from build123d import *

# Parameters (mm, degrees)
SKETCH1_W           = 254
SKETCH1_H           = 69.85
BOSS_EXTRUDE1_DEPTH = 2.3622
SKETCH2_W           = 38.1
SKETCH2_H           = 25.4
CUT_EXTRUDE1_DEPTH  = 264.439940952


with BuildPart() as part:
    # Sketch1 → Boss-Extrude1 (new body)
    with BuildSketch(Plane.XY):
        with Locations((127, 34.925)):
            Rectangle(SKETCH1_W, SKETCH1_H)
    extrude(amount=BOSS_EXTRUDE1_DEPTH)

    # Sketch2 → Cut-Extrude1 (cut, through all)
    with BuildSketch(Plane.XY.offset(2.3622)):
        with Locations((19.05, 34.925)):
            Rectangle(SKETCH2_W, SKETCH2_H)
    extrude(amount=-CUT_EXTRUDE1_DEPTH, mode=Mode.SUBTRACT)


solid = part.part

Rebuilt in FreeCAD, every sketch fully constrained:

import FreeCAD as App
import Part
import Sketcher

V = App.Vector
Q = App.Units.Quantity

doc = App.newDocument("Part")
body = doc.addObject("PartDesign::Body", "Body")

# Sketch on XY plane
sketch1 = doc.addObject("Sketcher::SketchObject", "Sketch")
body.addObject(sketch1)
sketch1.AttachmentSupport = (doc.XY_Plane, [""])
sketch1.MapMode = "FlatFace"
sketch1.addGeometry([
    Part.LineSegment(V(0, 70, 0), V(0, 0, 0)),
    Part.LineSegment(V(0, 0, 0), V(254, 0, 0)),
    Part.LineSegment(V(254, 0, 0), V(254, 70, 0)),
    Part.LineSegment(V(254, 70, 0), V(0, 70, 0)),
], False)
sketch1.addConstraint([
    Sketcher.Constraint("Coincident", 0, 2, 1, 1),
    Sketcher.Constraint("Coincident", 1, 2, 2, 1),
    Sketcher.Constraint("Coincident", 2, 2, 3, 1),
    Sketcher.Constraint("Coincident", 3, 2, 0, 1),
    Sketcher.Constraint("Vertical", 0),
    Sketcher.Constraint("Horizontal", 1),
    Sketcher.Constraint("Vertical", 2),
    Sketcher.Constraint("Horizontal", 3),
    Sketcher.Constraint("Coincident", 0, 2, -1, 1),
    Sketcher.Constraint("DistanceX", 1, 1, 1, 2, Q("10 in")),
    Sketcher.Constraint("DistanceY", 0, 2, 0, 1, Q("2.75 in")),
])
pad1 = doc.addObject("PartDesign::Pad", "Pad")
body.addObject(pad1)
pad1.Profile = sketch1
pad1.Length = Q("0.093 in")

# Sketch on XY plane
sketch2 = doc.addObject("Sketcher::SketchObject", "Sketch001")
body.addObject(sketch2)
sketch2.AttachmentSupport = (doc.XY_Plane, [""])
sketch2.MapMode = "FlatFace"
sketch2.AttachmentOffset = App.Placement(V(0, 0, 0.093 * 25.4), App.Rotation())
sketch2.addGeometry([
    Part.LineSegment(V(0, 48, 0), V(0, 22, 0)),
    Part.LineSegment(V(0, 22, 0), V(38, 22, 0)),
    Part.LineSegment(V(38, 22, 0), V(38, 48, 0)),
    Part.LineSegment(V(38, 48, 0), V(0, 48, 0)),
], False)
sketch2.addConstraint([
    Sketcher.Constraint("Coincident", 0, 2, 1, 1),
    Sketcher.Constraint("Coincident", 1, 2, 2, 1),
    Sketcher.Constraint("Coincident", 2, 2, 3, 1),
    Sketcher.Constraint("Coincident", 3, 2, 0, 1),
    Sketcher.Constraint("Vertical", 0),
    Sketcher.Constraint("Horizontal", 1),
    Sketcher.Constraint("Vertical", 2),
    Sketcher.Constraint("Horizontal", 3),
    Sketcher.Constraint("PointOnObject", 0, 2, -2),
    Sketcher.Constraint("DistanceY", 0, 2, 0, 1, Q("1 in")),
    Sketcher.Constraint("DistanceX", 1, 1, 1, 2, Q("1.5 in")),
    Sketcher.Constraint("DistanceY", -1, 1, 0, 2, Q("0.875 in")),
])
pocket1 = doc.addObject("PartDesign::Pocket", "Pocket")
body.addObject(pocket1)
pocket1.Profile = sketch2
pocket1.Type = "ThroughAll"

doc.recompute()
